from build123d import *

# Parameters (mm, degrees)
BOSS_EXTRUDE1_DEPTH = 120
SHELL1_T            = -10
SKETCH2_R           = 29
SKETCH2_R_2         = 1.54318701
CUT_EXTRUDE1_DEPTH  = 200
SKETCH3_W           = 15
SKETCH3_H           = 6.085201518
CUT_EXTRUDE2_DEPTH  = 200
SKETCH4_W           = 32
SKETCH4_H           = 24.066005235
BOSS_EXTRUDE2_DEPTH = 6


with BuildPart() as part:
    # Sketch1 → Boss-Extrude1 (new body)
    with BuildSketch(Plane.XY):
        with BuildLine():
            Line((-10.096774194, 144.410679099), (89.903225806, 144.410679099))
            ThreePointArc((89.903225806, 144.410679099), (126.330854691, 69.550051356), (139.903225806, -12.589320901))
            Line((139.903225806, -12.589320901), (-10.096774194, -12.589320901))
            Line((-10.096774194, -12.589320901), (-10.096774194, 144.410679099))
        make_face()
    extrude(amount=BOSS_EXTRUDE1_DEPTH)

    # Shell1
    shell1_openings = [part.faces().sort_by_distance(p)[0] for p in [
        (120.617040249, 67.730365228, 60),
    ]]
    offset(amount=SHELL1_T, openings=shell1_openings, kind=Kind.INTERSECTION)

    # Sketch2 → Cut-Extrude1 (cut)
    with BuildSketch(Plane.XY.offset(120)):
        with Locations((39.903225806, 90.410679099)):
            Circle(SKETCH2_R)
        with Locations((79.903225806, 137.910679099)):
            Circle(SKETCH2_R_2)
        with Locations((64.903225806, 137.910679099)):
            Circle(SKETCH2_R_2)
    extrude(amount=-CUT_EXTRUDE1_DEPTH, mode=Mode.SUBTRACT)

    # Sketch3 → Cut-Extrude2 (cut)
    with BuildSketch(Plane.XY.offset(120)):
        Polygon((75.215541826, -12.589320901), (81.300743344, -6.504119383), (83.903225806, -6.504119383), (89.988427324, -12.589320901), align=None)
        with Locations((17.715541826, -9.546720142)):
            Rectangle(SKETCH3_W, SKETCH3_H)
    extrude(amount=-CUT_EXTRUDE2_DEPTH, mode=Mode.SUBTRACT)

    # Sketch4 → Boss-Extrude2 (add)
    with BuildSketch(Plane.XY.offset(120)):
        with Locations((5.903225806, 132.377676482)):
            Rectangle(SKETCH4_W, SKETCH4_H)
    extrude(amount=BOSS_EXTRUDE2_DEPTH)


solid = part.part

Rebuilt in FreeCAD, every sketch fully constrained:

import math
import FreeCAD as App
import Part
import Sketcher

V = App.Vector
Q = App.Units.Quantity


def faces_at(feature, points):
    """Names of the faces that lie closest to the given points."""
    faces = feature.Shape.Faces
    near = lambda p: min(range(len(faces)), key=lambda i: faces[i].distToShape(Part.Vertex(*p))[0])
    return sorted({f"Face{near(p) + 1}" for p in points})


def add_polygon(sketch, points):
    """Adds a closed chain of lines whose ends are joined by coincident constraints."""
    first, n = sketch.GeometryCount, len(points)
    for a, b in zip(points, points[1:] + points[:1]):
        sketch.addGeometry(Part.LineSegment(App.Vector(*a, 0), App.Vector(*b, 0)), False)
    for i in range(n):
        sketch.addConstraint(Sketcher.Constraint("Coincident", first + i, 2, first + (i + 1) % n, 1))

doc = App.newDocument("Part")
body = doc.addObject("PartDesign::Body", "Body")

# Sketch on XY plane
sketch1 = doc.addObject("Sketcher::SketchObject", "Sketch")
body.addObject(sketch1)
sketch1.AttachmentSupport = (doc.XY_Plane, [""])
sketch1.MapMode = "FlatFace"
sketch1.addGeometry(Part.LineSegment(V(90, 144, 0), V(-10, 144, 0)), False)
sketch1.addGeometry(Part.LineSegment(V(-10, 144, 0), V(-10, -13, 0)), False)
sketch1.addGeometry(Part.LineSegment(V(-10, -13, 0), V(140, -13, 0)), False)
sketch1.addGeometry(Part.ArcOfCircle(Part.Circle(V(-149, -18, 0), V(0, 0, 1), 289), math.radians(1), math.radians(34)), False)
sketch1.addConstraint(Sketcher.Constraint("Coincident", 0, 2, 1, 1))
sketch1.addConstraint(Sketcher.Constraint("Coincident", 1, 2, 2, 1))
sketch1.addConstraint(Sketcher.Constraint("Coincident", 2, 2, 3, 1))
sketch1.addConstraint(Sketcher.Constraint("Coincident", 3, 2, 0, 1))
sketch1.addConstraint(Sketcher.Constraint("Horizontal", 0))
sketch1.addConstraint(Sketcher.Constraint("Vertical", 1))
sketch1.addConstraint(Sketcher.Constraint("Horizontal", 2))
sketch1.addConstraint(Sketcher.Constraint("DistanceX", 0, 2, 0, 1, Q("100 mm")))
sketch1.addConstraint(Sketcher.Constraint("DistanceX", 2, 1, 2, 2, Q("150 mm")))
sketch1.addConstraint(Sketcher.Constraint("DistanceY", 1, 2, 1, 1, Q("157 mm")))
sketch1.addConstraint(Sketcher.Constraint("Radius", 3, Q("288.960101 mm")))
sketch1.addConstraint(Sketcher.Constraint("DistanceY", 3, 3, -1, 1, Q("18.136091 mm")))
sketch1.addConstraint(Sketcher.Constraint("DistanceX", 3, 3, -1, 1, Q("149.003634 mm")))
pad1 = doc.addObject("PartDesign::Pad", "Pad")
body.addObject(pad1)
pad1.Profile = sketch1
pad1.Length = 120
doc.recompute()

thickness = doc.addObject("PartDesign::Thickness", "Thickness")
body.addObject(thickness)
thickness.Base = (pad1, faces_at(pad1, [(126.331, 69.55, 60)]))
thickness.Value = 10
thickness.Reversed = True
thickness.Join = "Intersection"

# Sketch on XY plane
sketch2 = doc.addObject("Sketcher::SketchObject", "Sketch001")
body.addObject(sketch2)
sketch2.AttachmentSupport = (doc.XY_Plane, [""])
sketch2.MapMode = "FlatFace"
sketch2.AttachmentOffset = App.Placement(V(0, 0, 120), App.Rotation())
sketch2.addGeometry(Part.Circle(V(39.9, 90.4, 0), V(0, 0, 1), 29), False)
sketch2.addGeometry(Part.Circle(V(79.9, 137.9, 0), V(0, 0, 1), 1.5), False)
sketch2.addGeometry(Part.Circle(V(64.9, 137.9, 0), V(0, 0, 1), 1.5), False)
sketch2.addConstraint(Sketcher.Constraint("Equal", 1, 2))
sketch2.addConstraint(Sketcher.Constraint("Horizontal", 1, 3, 2, 3))
sketch2.addConstraint(Sketcher.Constraint("Diameter", 0, Q("58 mm")))
sketch2.addConstraint(Sketcher.Constraint("DistanceX", 0, 3, 1, 3, Q("40 mm")))
sketch2.addConstraint(Sketcher.Constraint("DistanceX", 2, 3, 1, 3, Q("15 mm")))
sketch2.addConstraint(Sketcher.Constraint("DistanceY", 0, 3, 1, 3, Q("47.5 mm")))
sketch2.addConstraint(Sketcher.Constraint("Diameter", 1, Q("3.086374 mm")))
sketch2.addConstraint(Sketcher.Constraint("DistanceY", -1, 1, 0, 3, Q("90.410679 mm")))
sketch2.addConstraint(Sketcher.Constraint("DistanceX", -1, 1, 0, 3, Q("39.903226 mm")))
pocket1 = doc.addObject("PartDesign::Pocket", "Pocket")
body.addObject(pocket1)
pocket1.Profile = sketch2
pocket1.Length = 200

# Sketch on XY plane
sketch3 = doc.addObject("Sketcher::SketchObject", "Sketch002")
body.addObject(sketch3)
sketch3.AttachmentSupport = (doc.XY_Plane, [""])
sketch3.MapMode = "FlatFace"
sketch3.AttachmentOffset = App.Placement(V(0, 0, 120), App.Rotation())
add_polygon(sketch3, [(81.3, -6.5), (75.2, -12.6), (90, -12.6), (83.9, -6.5)])  # lines 0-3
add_polygon(sketch3, [(10.2, -6.5), (10.2, -12.6), (25.2, -12.6), (25.2, -6.5)])  # lines 4-7
sketch3.addConstraint(Sketcher.Constraint("Horizontal", 1))
sketch3.addConstraint(Sketcher.Constraint("Horizontal", 3))
sketch3.addConstraint(Sketcher.Constraint("Vertical", 4))
sketch3.addConstraint(Sketcher.Constraint("Horizontal", 5))
sketch3.addConstraint(Sketcher.Constraint("Vertical", 6))
sketch3.addConstraint(Sketcher.Constraint("Horizontal", 7))
sketch3.addConstraint(Sketcher.Constraint("Perpendicular", 0, 2))
sketch3.addConstraint(Sketcher.Constraint("Horizontal", 1, 2, 4, 2))
sketch3.addConstraint(Sketcher.Constraint("Horizontal", 3, 2, 6, 2))
sketch3.addConstraint(Sketcher.Constraint("Equal", 0, 2))
sketch3.addConstraint(Sketcher.Constraint("DistanceX", 5, 1, 5, 2, Q("15 mm")))
sketch3.addConstraint(Sketcher.Constraint("DistanceX", 4, 2, 0, 2, Q("65 mm")))
sketch3.addConstraint(Sketcher.Constraint("DistanceY", 4, 2, 4, 1, Q("6.085202 mm")))
sketch3.addConstraint(Sketcher.Constraint("DistanceX", 1, 1, 1, 2, Q("14.772885 mm")))
sketch3.addConstraint(Sketcher.Constraint("DistanceX", -1, 1, 0, 2, Q("75.215542 mm")))
sketch3.addConstraint(Sketcher.Constraint("DistanceY", 0, 2, -1, 1, Q("12.589321 mm")))
pocket2 = doc.addObject("PartDesign::Pocket", "Pocket001")
body.addObject(pocket2)
pocket2.Profile = sketch3
pocket2.Length = 200

# Sketch on XY plane
sketch4 = doc.addObject("Sketcher::SketchObject", "Sketch003")
body.addObject(sketch4)
sketch4.AttachmentSupport = (doc.XY_Plane, [""])
sketch4.MapMode = "FlatFace"
sketch4.AttachmentOffset = App.Placement(V(0, 0, 120), App.Rotation())
add_polygon(sketch4, [(-10, 144), (-10, 120), (22, 120), (22, 144)])  # lines 0-3
sketch4.addConstraint(Sketcher.Constraint("Vertical", 0))
sketch4.addConstraint(Sketcher.Constraint("Horizontal", 1))
sketch4.addConstraint(Sketcher.Constraint("Vertical", 2))
sketch4.addConstraint(Sketcher.Constraint("Horizontal", 3))
sketch4.addConstraint(Sketcher.Constraint("DistanceX", 1, 1, 1, 2, Q("32 mm")))
sketch4.addConstraint(Sketcher.Constraint("DistanceY", 0, 2, 0, 1, Q("24.066005 mm")))
sketch4.addConstraint(Sketcher.Constraint("DistanceY", -1, 1, 2, 2, Q("144.410679 mm")))
sketch4.addConstraint(Sketcher.Constraint("DistanceX", 0, 2, -1, 1, Q("10.096774 mm")))
pad2 = doc.addObject("PartDesign::Pad", "Pad001")
body.addObject(pad2)
pad2.Profile = sketch4
pad2.Length = 6

doc.recompute()
